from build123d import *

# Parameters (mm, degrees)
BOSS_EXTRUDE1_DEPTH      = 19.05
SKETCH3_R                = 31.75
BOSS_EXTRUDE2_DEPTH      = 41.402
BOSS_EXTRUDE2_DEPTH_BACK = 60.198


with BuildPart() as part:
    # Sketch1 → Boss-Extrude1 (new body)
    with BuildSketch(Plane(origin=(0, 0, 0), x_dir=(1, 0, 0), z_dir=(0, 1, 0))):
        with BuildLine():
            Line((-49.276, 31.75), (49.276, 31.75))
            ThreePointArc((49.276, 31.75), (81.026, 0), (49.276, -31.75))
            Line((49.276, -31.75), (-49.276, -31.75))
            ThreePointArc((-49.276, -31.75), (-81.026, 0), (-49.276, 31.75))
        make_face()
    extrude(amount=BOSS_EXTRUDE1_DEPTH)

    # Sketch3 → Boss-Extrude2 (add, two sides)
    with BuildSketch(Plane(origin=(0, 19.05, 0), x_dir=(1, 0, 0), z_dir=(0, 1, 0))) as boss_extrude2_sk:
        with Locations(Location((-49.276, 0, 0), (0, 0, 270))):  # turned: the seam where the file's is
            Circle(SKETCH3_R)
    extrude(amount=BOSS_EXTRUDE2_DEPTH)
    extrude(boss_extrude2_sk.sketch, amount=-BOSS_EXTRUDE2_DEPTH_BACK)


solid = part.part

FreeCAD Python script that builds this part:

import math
import FreeCAD as App
import Part
import Sketcher
Q = App.Units.Quantity

doc = App.newDocument("Part")
body = doc.addObject("PartDesign::Body", "Body")

sketch1 = body.newObject("Sketcher::SketchObject", "Sketch")
sketch1.AttachmentSupport = (doc.getObject("XZ_Plane"), [""])
sketch1.MapMode = "FlatFace"
sketch1.addGeometry([
    Part.LineSegment(App.Vector(49, -32, 0), App.Vector(-49, -32, 0)),
    Part.ArcOfCircle(Part.Circle(App.Vector(-49, 0, 0), App.Vector(0, 0, 1), 32), math.radians(90), math.radians(270)),
    Part.LineSegment(App.Vector(-49, 32, 0), App.Vector(49, 32, 0)),
    Part.ArcOfCircle(Part.Circle(App.Vector(49, 0, 0), App.Vector(0, 0, 1), 32), math.radians(-90), math.radians(90)),
], False)
sketch1.addConstraint([
    Sketcher.Constraint("Tangent", 0, 2, 1, 2),
    Sketcher.Constraint("Tangent", 1, 1, 2, 1),
    Sketcher.Constraint("Tangent", 2, 2, 3, 2),
    Sketcher.Constraint("Tangent", 3, 1, 0, 1),
    Sketcher.Constraint("Horizontal", 0),
    Sketcher.Constraint("Horizontal", 2),
    Sketcher.Constraint("Symmetric", 1, 3, 3, 3, -1, 1),
    Sketcher.Constraint("Radius", 1, Q("1.25 in")),
    Sketcher.Constraint("DistanceX", 0, 2, 0, 1, Q("3.88 in")),
])
pad1 = body.newObject("PartDesign::Pad", "Pad")
pad1.Profile = sketch1
pad1.Length = Q("0.75 in")
pad1.Reversed = True

sketch2 = body.newObject("Sketcher::SketchObject", "Sketch001")
sketch2.AttachmentSupport = (doc.getObject("XZ_Plane"), [""])
sketch2.MapMode = "FlatFace"
sketch2.AttachmentOffset = App.Placement(App.Vector(0, 0, -0.75 * 25.4), App.Rotation())
sketch2.addGeometry(Part.Circle(App.Vector(-49, 0, 0), App.Vector(0, 0, 1), 32), False)
sketch2.addConstraint([
    Sketcher.Constraint("PointOnObject", 0, 3, -1),
    Sketcher.Constraint("Diameter", 0, Q("2.5 in")),
    Sketcher.Constraint("DistanceX", 0, 3, -1, 1, Q("1.94 in")),
])
pad2 = body.newObject("PartDesign::Pad", "Pad001")
pad2.Profile = sketch2
pad2.Type = "TwoLengths"
pad2.Length = Q("1.63 in")
pad2.Length2 = Q("2.37 in")
pad2.Reversed = True

doc.recompute()
